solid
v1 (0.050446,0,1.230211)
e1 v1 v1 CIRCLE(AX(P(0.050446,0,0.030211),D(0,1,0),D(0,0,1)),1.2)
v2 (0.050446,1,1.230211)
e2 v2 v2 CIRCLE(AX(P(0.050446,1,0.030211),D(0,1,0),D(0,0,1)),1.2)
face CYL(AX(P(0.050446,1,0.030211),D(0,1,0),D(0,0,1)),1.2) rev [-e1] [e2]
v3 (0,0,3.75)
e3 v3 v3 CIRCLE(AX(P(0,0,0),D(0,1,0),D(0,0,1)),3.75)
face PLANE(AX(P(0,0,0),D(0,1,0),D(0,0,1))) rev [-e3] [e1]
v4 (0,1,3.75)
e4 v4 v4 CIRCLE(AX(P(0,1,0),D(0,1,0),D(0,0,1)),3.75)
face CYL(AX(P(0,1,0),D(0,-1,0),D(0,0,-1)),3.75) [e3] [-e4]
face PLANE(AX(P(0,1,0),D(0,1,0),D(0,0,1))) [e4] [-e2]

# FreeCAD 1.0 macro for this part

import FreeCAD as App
import Part
import Sketcher

doc = App.newDocument("Part")
body = doc.addObject("PartDesign::Body", "Body")

# Sketch on XZ plane
sketch1 = body.newObject("Sketcher::SketchObject", "Sketch")
sketch1.AttachmentSupport = (doc.getObject("XZ_Plane"), [""])
sketch1.MapMode = "FlatFace"
sketch1.addGeometry(Part.Circle(App.Vector(0, 0, 0), App.Vector(0, 0, 1), 3.75), False)
sketch1.addConstraint(Sketcher.Constraint("Coincident", 0, 3, -1, 1))
sketch1.addConstraint(Sketcher.Constraint("Diameter", 0, 7.5))
pad1 = body.newObject("PartDesign::Pad", "Pad")
pad1.Profile = sketch1
pad1.Length = 1
pad1.Reversed = True

# Sketch on XZ plane
sketch2 = body.newObject("Sketcher::SketchObject", "Sketch001")
sketch2.AttachmentSupport = (doc.getObject("XZ_Plane"), [""])
sketch2.MapMode = "FlatFace"
sketch2.AttachmentOffset = App.Placement(App.Vector(0, 0, -1), App.Rotation())
sketch2.addGeometry(Part.Circle(App.Vector(0.050446, 0.030211, 0), App.Vector(0, 0, 1), 1.2), False)
sketch2.addConstraint(Sketcher.Constraint("Diameter", 0, 2.4))
sketch2.addConstraint(Sketcher.Constraint("DistanceY", -1, 1, 0, 3, 0.030211))
sketch2.addConstraint(Sketcher.Constraint("DistanceX", -1, 1, 0, 3, 0.050446))
doc.recompute()
hole = body.newObject("PartDesign::Hole", "Hole")
hole.Profile = sketch2
hole.ThreadType = "None"
hole.Diameter = 2.4
hole.DepthType = "ThroughAll"
hole.Reversed = True

doc.recompute()
